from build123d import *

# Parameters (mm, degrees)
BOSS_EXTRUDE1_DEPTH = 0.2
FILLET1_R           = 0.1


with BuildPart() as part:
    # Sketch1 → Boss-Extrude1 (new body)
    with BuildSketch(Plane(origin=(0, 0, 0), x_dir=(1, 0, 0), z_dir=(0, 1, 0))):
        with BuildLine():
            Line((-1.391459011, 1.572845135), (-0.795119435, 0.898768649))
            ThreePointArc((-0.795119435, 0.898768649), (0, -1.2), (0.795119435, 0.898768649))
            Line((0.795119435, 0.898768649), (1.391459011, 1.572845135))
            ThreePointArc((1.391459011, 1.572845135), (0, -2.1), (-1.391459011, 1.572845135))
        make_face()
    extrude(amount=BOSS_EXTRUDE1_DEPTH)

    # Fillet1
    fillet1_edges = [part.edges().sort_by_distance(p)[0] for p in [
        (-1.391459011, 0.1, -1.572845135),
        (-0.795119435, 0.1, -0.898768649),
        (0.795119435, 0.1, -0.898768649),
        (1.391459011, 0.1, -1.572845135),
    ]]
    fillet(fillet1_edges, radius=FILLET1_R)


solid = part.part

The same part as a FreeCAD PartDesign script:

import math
import FreeCAD as App
import Part
import Sketcher
Q = App.Units.Quantity


def edges_at(feature, points):
    """Names of the edges that pass closest to the given points."""
    edges = feature.Shape.Edges
    near = lambda p: min(range(len(edges)), key=lambda i: edges[i].distToShape(Part.Vertex(*p))[0])
    return sorted({f"Edge{near(p) + 1}" for p in points})

doc = App.newDocument("Part")
params = doc.addObject("Spreadsheet::Sheet", "Params")
for row, (alias, value) in enumerate([
    ("sketch1_radius", "2.1 mm"),
    ("sketch1_radius2", "1.2 mm"),
    ("pad1_length", "0.2 mm"),
    ("fillet_radius", "0.1 mm"),
], start=1):
    params.set(f"A{row}", alias)
    params.set(f"B{row}", "=" + value)
    params.setAlias(f"B{row}", alias)

body = doc.addObject("PartDesign::Body", "Body")

# Sketch on XZ plane
sketch1 = doc.addObject("Sketcher::SketchObject", "Sketch")
body.addObject(sketch1)
sketch1.AttachmentSupport = (doc.XZ_Plane, [""])
sketch1.MapMode = "FlatFace"
sketch1.addGeometry(Part.LineSegment(App.Vector(-0.8, -0.9, 0), App.Vector(-1.4, -1.6, 0)), False)
sketch1.addGeometry(Part.ArcOfCircle(Part.Circle(App.Vector(0, 0, 0), App.Vector(0, 0, 1), 2.1), math.radians(-49), math.radians(229)), False)
sketch1.addGeometry(Part.LineSegment(App.Vector(1.4, -1.6, 0), App.Vector(0.8, -0.9, 0)), False)
sketch1.addGeometry(Part.ArcOfCircle(Part.Circle(App.Vector(0, 0, 0), App.Vector(0, 0, 1), 1.2), math.radians(-49), math.radians(229)), False)
sketch1.addConstraint(Sketcher.Constraint("Coincident", 0, 2, 1, 2))
sketch1.addConstraint(Sketcher.Constraint("Coincident", 1, 1, 2, 1))
sketch1.addConstraint(Sketcher.Constraint("Coincident", 2, 2, 3, 1))
sketch1.addConstraint(Sketcher.Constraint("Coincident", 3, 2, 0, 1))
sketch1.addConstraint(Sketcher.Constraint("Coincident", 1, 3, -1, 1))
sketch1.addConstraint(Sketcher.Constraint("Coincident", 3, 3, -1, 1))
sketch1.addConstraint(Sketcher.Constraint("Horizontal", 0, 2, 1, 1))
sketch1.addConstraint(Sketcher.Constraint("Horizontal", 2, 2, 3, 2))
sketch1.addConstraint(Sketcher.Constraint("Radius", 1, Q("2.1 mm")))
sketch1.addConstraint(Sketcher.Constraint("Radius", 3, Q("1.2 mm")))
sketch1.addConstraint(Sketcher.Constraint("DistanceX", 0, 2, -1, 1, Q("1.391459 mm")))
sketch1.addConstraint(Sketcher.Constraint("DistanceX", -1, 1, 2, 2, Q("0.795119 mm")))
sketch1.setExpression("Constraints[8]", "Params.sketch1_radius")
sketch1.setExpression("Constraints[9]", "Params.sketch1_radius2")
pad1 = doc.addObject("PartDesign::Pad", "Pad")
body.addObject(pad1)
pad1.Profile = sketch1
pad1.setExpression("Length", "Params.pad1_length")
pad1.Reversed = True
doc.recompute()

fillet = doc.addObject("PartDesign::Fillet", "Fillet")
body.addObject(fillet)
fillet.Base = (pad1, edges_at(pad1, [
    (-1.391, 0.1, -1.573),
    (-0.795, 0.1, -0.899),
    (0.795, 0.1, -0.899),
    (1.391, 0.1, -1.573),
]))
fillet.setExpression("Radius", "Params.fillet_radius")

doc.recompute()
